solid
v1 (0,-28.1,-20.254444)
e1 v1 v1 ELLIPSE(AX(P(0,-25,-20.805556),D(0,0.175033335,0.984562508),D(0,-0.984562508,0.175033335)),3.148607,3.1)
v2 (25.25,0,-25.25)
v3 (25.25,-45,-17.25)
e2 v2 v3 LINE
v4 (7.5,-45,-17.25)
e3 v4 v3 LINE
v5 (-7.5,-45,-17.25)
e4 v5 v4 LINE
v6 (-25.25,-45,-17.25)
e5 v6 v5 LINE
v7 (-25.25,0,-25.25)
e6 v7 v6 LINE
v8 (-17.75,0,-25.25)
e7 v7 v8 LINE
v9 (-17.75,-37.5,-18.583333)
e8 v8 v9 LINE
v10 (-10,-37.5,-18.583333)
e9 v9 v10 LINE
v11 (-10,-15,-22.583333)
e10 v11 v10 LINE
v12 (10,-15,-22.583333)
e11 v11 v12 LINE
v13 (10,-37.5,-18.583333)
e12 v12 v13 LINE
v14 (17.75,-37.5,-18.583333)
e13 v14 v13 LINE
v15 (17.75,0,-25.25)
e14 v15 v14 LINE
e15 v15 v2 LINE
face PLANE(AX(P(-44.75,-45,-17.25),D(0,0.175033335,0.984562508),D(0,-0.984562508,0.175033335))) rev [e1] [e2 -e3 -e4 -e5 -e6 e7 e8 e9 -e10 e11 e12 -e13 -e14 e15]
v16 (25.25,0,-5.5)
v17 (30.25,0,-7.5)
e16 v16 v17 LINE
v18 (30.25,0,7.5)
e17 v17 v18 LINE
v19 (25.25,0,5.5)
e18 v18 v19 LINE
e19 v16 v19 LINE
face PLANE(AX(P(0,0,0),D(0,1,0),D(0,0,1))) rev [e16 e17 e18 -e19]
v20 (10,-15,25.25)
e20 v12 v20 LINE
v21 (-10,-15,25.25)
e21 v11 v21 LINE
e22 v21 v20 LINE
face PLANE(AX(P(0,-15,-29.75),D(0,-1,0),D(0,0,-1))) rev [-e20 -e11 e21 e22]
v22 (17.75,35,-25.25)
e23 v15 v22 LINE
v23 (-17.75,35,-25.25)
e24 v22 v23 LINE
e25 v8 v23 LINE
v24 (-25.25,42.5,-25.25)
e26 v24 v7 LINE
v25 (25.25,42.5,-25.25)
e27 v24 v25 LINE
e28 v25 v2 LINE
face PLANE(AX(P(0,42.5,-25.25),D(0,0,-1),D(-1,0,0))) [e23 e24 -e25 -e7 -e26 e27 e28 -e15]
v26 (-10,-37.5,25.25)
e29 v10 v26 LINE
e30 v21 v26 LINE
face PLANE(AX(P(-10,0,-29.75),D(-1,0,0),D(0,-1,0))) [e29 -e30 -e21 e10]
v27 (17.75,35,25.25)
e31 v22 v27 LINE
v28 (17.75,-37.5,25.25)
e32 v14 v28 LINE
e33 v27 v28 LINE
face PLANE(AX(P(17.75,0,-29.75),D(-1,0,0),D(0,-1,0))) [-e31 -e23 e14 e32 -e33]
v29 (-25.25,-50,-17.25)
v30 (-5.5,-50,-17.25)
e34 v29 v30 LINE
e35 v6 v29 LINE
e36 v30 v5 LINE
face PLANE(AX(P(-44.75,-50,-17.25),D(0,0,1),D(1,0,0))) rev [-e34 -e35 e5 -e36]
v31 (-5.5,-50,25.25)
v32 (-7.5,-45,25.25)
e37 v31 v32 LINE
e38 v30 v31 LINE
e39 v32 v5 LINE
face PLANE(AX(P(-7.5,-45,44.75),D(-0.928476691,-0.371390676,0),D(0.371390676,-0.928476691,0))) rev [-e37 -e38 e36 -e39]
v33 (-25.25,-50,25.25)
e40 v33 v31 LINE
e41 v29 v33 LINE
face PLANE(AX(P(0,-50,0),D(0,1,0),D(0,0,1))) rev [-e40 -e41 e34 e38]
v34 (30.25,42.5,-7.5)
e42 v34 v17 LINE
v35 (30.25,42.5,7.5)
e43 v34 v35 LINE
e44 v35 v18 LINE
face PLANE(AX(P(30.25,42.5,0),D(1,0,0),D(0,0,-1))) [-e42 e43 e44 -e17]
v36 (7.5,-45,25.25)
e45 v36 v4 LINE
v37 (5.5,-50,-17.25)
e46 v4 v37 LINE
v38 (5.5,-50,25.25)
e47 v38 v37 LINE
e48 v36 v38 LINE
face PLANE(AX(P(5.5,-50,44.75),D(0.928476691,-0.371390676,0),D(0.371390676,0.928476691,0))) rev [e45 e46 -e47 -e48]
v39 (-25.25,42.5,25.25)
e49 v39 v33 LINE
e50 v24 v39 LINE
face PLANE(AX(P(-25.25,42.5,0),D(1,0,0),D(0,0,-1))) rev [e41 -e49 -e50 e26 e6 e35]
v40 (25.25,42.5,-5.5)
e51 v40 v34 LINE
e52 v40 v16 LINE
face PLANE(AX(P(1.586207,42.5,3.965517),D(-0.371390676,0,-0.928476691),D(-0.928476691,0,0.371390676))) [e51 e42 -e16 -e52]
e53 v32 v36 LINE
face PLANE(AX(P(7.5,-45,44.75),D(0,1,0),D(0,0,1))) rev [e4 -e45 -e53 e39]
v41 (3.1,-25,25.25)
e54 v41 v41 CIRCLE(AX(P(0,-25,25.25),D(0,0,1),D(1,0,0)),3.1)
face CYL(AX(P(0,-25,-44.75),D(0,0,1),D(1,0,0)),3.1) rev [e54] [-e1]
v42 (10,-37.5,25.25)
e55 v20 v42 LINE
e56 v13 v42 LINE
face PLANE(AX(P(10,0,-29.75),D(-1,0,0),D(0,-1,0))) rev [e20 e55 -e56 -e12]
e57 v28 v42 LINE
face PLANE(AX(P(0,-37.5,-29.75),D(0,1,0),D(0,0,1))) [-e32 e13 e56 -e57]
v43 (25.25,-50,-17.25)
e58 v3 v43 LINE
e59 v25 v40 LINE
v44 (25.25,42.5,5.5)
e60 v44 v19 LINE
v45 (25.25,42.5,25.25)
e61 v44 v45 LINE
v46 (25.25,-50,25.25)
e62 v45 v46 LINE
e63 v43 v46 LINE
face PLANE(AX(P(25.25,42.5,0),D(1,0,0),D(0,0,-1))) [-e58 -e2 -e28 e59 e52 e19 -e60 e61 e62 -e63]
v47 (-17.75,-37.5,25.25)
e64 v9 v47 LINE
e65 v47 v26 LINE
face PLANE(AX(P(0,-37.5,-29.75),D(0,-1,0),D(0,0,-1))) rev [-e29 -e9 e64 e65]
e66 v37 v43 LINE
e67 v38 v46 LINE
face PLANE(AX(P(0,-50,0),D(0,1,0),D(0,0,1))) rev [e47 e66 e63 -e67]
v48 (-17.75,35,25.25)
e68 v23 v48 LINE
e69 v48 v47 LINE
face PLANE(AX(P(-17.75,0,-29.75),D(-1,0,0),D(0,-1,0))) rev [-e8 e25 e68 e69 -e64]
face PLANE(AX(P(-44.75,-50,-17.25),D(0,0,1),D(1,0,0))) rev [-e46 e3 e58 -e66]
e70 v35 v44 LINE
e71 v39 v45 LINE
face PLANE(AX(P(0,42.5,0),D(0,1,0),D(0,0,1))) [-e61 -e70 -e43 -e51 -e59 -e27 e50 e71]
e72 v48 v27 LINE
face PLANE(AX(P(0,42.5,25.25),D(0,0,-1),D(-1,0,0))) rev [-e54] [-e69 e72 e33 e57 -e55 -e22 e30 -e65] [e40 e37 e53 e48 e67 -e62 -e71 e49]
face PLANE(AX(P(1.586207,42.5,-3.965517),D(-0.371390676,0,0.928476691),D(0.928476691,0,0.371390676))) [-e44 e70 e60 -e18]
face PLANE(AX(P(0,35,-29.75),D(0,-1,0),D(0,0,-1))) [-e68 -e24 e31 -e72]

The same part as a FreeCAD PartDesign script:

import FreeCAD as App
import Part
import Sketcher

V = App.Vector

doc = App.newDocument("Part")
params = doc.addObject("Spreadsheet::Sheet", "Params")
for row, (alias, value) in enumerate([
    ("sketch1_height", "15 mm"),
    ("sketch1_width", "50.5 mm"),
    ("pad1_length", "42.5 mm"),
    ("sketch2_width", "50.5 mm"),
    ("pad2_length", "50 mm"),
    ("sketch3_width", "11 mm"),
    ("sketch3_width2", "15 mm"),
    ("pocket1_length", "70 mm"),
    ("sketch4_width", "50 mm"),
    ("sketch4_width2", "5 mm"),
    ("sketch4_height", "8 mm"),
    ("pocket2_length", "70 mm"),
    ("sketch5_diameter", "6.2 mm"),
    ("pocket3_length", "70 mm"),
    ("sketch6_width", "20 mm"),
    ("sketch6_width2", "35.5 mm"),
    ("sketch6_height", "72.5 mm"),
    ("sketch6_height2", "22.5 mm"),
    ("pocket4_length", "55 mm"),
], start=1):
    params.set(f"A{row}", alias)
    params.set(f"B{row}", "=" + value)
    params.setAlias(f"B{row}", alias)

body = doc.addObject("PartDesign::Body", "Body")

# Sketch on XZ plane
sketch1 = body.newObject("Sketcher::SketchObject", "Sketch")
sketch1.AttachmentSupport = (doc.getObject("XZ_Plane"), [""])
sketch1.MapMode = "FlatFace"
sketch1.addGeometry(Part.LineSegment(V(30.25, -7.5, 0), V(25.25, -5.5, 0)), False)
sketch1.addGeometry(Part.LineSegment(V(25.25, -5.5, 0), V(25.25, -25.25, 0)), False)
sketch1.addGeometry(Part.LineSegment(V(25.25, -25.25, 0), V(-25.25, -25.25, 0)), False)
sketch1.addGeometry(Part.LineSegment(V(-25.25, -25.25, 0), V(-25.25, 25.25, 0)), False)
sketch1.addGeometry(Part.LineSegment(V(-25.25, 25.25, 0), V(25.25, 25.25, 0)), False)
sketch1.addGeometry(Part.LineSegment(V(25.25, 25.25, 0), V(25.25, 5.5, 0)), False)
sketch1.addGeometry(Part.LineSegment(V(25.25, 5.5, 0), V(30.25, 7.5, 0)), False)
sketch1.addGeometry(Part.LineSegment(V(30.25, 7.5, 0), V(30.25, -7.5, 0)), False)
sketch1.addConstraint(Sketcher.Constraint("Coincident", 0, 2, 1, 1))
sketch1.addConstraint(Sketcher.Constraint("Coincident", 1, 2, 2, 1))
sketch1.addConstraint(Sketcher.Constraint("Coincident", 2, 2, 3, 1))
sketch1.addConstraint(Sketcher.Constraint("Coincident", 3, 2, 4, 1))
sketch1.addConstraint(Sketcher.Constraint("Coincident", 4, 2, 5, 1))
sketch1.addConstraint(Sketcher.Constraint("Coincident", 5, 2, 6, 1))
sketch1.addConstraint(Sketcher.Constraint("Coincident", 6, 2, 7, 1))
sketch1.addConstraint(Sketcher.Constraint("Coincident", 7, 2, 0, 1))
sketch1.addConstraint(Sketcher.Constraint("Vertical", 1))
sketch1.addConstraint(Sketcher.Constraint("Horizontal", 2))
sketch1.addConstraint(Sketcher.Constraint("Vertical", 3))
sketch1.addConstraint(Sketcher.Constraint("Horizontal", 4))
sketch1.addConstraint(Sketcher.Constraint("Vertical", 5))
sketch1.addConstraint(Sketcher.Constraint("Vertical", 7))
sketch1.addConstraint(Sketcher.Constraint("Symmetric", 1, 2, 3, 2, -1, 1))
sketch1.addConstraint(Sketcher.Constraint("Symmetric", 0, 2, 5, 2, -1))
sketch1.addConstraint(Sketcher.Constraint("Equal", 4, 3))
sketch1.addConstraint(Sketcher.Constraint("Equal", 0, 6))
sketch1.addConstraint(Sketcher.Constraint("DistanceY", 7, 2, 7, 1, 15.0))
sketch1.addConstraint(Sketcher.Constraint("DistanceX", 2, 2, 2, 1, 50.5))
sketch1.addConstraint(Sketcher.Constraint("DistanceY", 0, 2, 5, 2, 11.0))
sketch1.addConstraint(Sketcher.Constraint("DistanceX", 5, 2, 6, 2, 5.0))
sketch1.setExpression("Constraints[18]", "Params.sketch1_height")
sketch1.setExpression("Constraints[19]", "Params.sketch1_width")
pad1 = body.newObject("PartDesign::Pad", "Pad")
pad1.Profile = sketch1
pad1.setExpression("Length", "Params.pad1_length")
pad1.Reversed = True

# Sketch on XZ plane
sketch2 = body.newObject("Sketcher::SketchObject", "Sketch001")
sketch2.AttachmentSupport = (doc.getObject("XZ_Plane"), [""])
sketch2.MapMode = "FlatFace"
sketch2.addGeometry(Part.LineSegment(V(-25.25, -25.25, 0), V(-25.25, 25.25, 0)), False)
sketch2.addGeometry(Part.LineSegment(V(-25.25, 25.25, 0), V(25.25, 25.25, 0)), False)
sketch2.addGeometry(Part.LineSegment(V(25.25, 25.25, 0), V(25.25, -25.25, 0)), False)
sketch2.addGeometry(Part.LineSegment(V(25.25, -25.25, 0), V(-25.25, -25.25, 0)), False)
sketch2.addConstraint(Sketcher.Constraint("Coincident", 0, 2, 1, 1))
sketch2.addConstraint(Sketcher.Constraint("Coincident", 1, 2, 2, 1))
sketch2.addConstraint(Sketcher.Constraint("Coincident", 2, 2, 3, 1))
sketch2.addConstraint(Sketcher.Constraint("Coincident", 3, 2, 0, 1))
sketch2.addConstraint(Sketcher.Constraint("Vertical", 0))
sketch2.addConstraint(Sketcher.Constraint("Horizontal", 1))
sketch2.addConstraint(Sketcher.Constraint("Vertical", 2))
sketch2.addConstraint(Sketcher.Constraint("Horizontal", 3))
sketch2.addConstraint(Sketcher.Constraint("Symmetric", 0, 2, 2, 2, -1, 1))
sketch2.addConstraint(Sketcher.Constraint("Equal", 3, 0))
sketch2.addConstraint(Sketcher.Constraint("DistanceX", 1, 1, 1, 2, 50.5))
sketch2.setExpression("Constraints[10]", "Params.sketch2_width")
pad2 = body.newObject("PartDesign::Pad", "Pad001")
pad2.Profile = sketch2
pad2.setExpression("Length", "Params.pad2_length")

# Sketch on XY plane
sketch3 = body.newObject("Sketcher::SketchObject", "Sketch002")
sketch3.AttachmentSupport = (doc.getObject("XY_Plane"), [""])
sketch3.MapMode = "FlatFace"
sketch3.AttachmentOffset = App.Placement(V(0, 0, -25.25), App.Rotation())
sketch3.addGeometry(Part.LineSegment(V(7.5, -45, 0), V(5.5, -50, 0)), False)
sketch3.addGeometry(Part.LineSegment(V(5.5, -50, 0), V(-5.5, -50, 0)), False)
sketch3.addGeometry(Part.LineSegment(V(-5.5, -50, 0), V(-7.5, -45, 0)), False)
sketch3.addGeometry(Part.LineSegment(V(-7.5, -45, 0), V(7.5, -45, 0)), False)
sketch3.addConstraint(Sketcher.Constraint("Coincident", 0, 2, 1, 1))
sketch3.addConstraint(Sketcher.Constraint("Coincident", 1, 2, 2, 1))
sketch3.addConstraint(Sketcher.Constraint("Coincident", 2, 2, 3, 1))
sketch3.addConstraint(Sketcher.Constraint("Coincident", 3, 2, 0, 1))
sketch3.addConstraint(Sketcher.Constraint("Horizontal", 1))
sketch3.addConstraint(Sketcher.Constraint("Horizontal", 3))
sketch3.addConstraint(Sketcher.Constraint("Equal", 0, 2))
sketch3.addConstraint(Sketcher.Constraint("DistanceX", 1, 2, 1, 1, 11.0))
sketch3.addConstraint(Sketcher.Constraint("DistanceX", 3, 1, 3, 2, 15.0))
sketch3.addConstraint(Sketcher.Constraint("DistanceY", 0, 2, -1, 1, 50.0))
sketch3.addConstraint(Sketcher.Constraint("DistanceY", 2, 2, -1, 1, 45.0))
sketch3.addConstraint(Sketcher.Constraint("DistanceX", -1, 1, 0, 2, 5.5))
sketch3.setExpression("Constraints[7]", "Params.sketch3_width")
sketch3.setExpression("Constraints[8]", "Params.sketch3_width2")
pocket1 = body.newObject("PartDesign::Pocket", "Pocket")
pocket1.Profile = sketch3
pocket1.setExpression("Length", "Params.pocket1_length")
pocket1.Reversed = True

# Sketch on YZ plane
sketch4 = body.newObject("Sketcher::SketchObject", "Sketch003")
sketch4.AttachmentSupport = (doc.getObject("YZ_Plane"), [""])
sketch4.MapMode = "FlatFace"
sketch4.AttachmentOffset = App.Placement(V(0, 0, 25.25), App.Rotation())
sketch4.addGeometry(Part.LineSegment(V(-50, -17.25, 0), V(-50, -25.25, 0)), False)
sketch4.addGeometry(Part.LineSegment(V(-50, -25.25, 0), V(0, -25.25, 0)), False)
sketch4.addGeometry(Part.LineSegment(V(0, -25.25, 0), V(-45, -17.25, 0)), False)
sketch4.addGeometry(Part.LineSegment(V(-45, -17.25, 0), V(-50, -17.25, 0)), False)
sketch4.addConstraint(Sketcher.Constraint("Coincident", 0, 2, 1, 1))
sketch4.addConstraint(Sketcher.Constraint("Coincident", 1, 2, 2, 1))
sketch4.addConstraint(Sketcher.Constraint("Coincident", 2, 2, 3, 1))
sketch4.addConstraint(Sketcher.Constraint("Coincident", 3, 2, 0, 1))
sketch4.addConstraint(Sketcher.Constraint("Vertical", 0))
sketch4.addConstraint(Sketcher.Constraint("Horizontal", 1))
sketch4.addConstraint(Sketcher.Constraint("Horizontal", 3))
sketch4.addConstraint(Sketcher.Constraint("PointOnObject", 1, 2, -2))
sketch4.addConstraint(Sketcher.Constraint("DistanceX", 1, 1, 1, 2, 50.0))
sketch4.addConstraint(Sketcher.Constraint("DistanceX", 3, 2, 3, 1, 5.0))
sketch4.addConstraint(Sketcher.Constraint("DistanceY", 0, 2, 0, 1, 8.0))
sketch4.addConstraint(Sketcher.Constraint("DistanceY", 0, 2, -1, 1, 25.25))
sketch4.setExpression("Constraints[8]", "Params.sketch4_width")
sketch4.setExpression("Constraints[9]", "Params.sketch4_width2")
sketch4.setExpression("Constraints[10]", "Params.sketch4_height")
pocket2 = body.newObject("PartDesign::Pocket", "Pocket001")
pocket2.Profile = sketch4
pocket2.setExpression("Length", "Params.pocket2_length")

# Sketch on XY plane
sketch5 = body.newObject("Sketcher::SketchObject", "Sketch004")
sketch5.AttachmentSupport = (doc.getObject("XY_Plane"), [""])
sketch5.MapMode = "FlatFace"
sketch5.AttachmentOffset = App.Placement(V(0, 0, 25.25), App.Rotation())
sketch5.addGeometry(Part.Circle(V(0, -25, 0), V(0, 0, 1), 3.1), False)
sketch5.addConstraint(Sketcher.Constraint("PointOnObject", 0, 3, -2))
sketch5.addConstraint(Sketcher.Constraint("Diameter", 0, 6.2))
sketch5.addConstraint(Sketcher.Constraint("DistanceY", 0, 3, -1, 1, 25.0))
sketch5.setExpression("Constraints[1]", "Params.sketch5_diameter")
pocket3 = body.newObject("PartDesign::Pocket", "Pocket002")
pocket3.Profile = sketch5
pocket3.setExpression("Length", "Params.pocket3_length")

# Sketch on XY plane
sketch6 = body.newObject("Sketcher::SketchObject", "Sketch005")
sketch6.AttachmentSupport = (doc.getObject("XY_Plane"), [""])
sketch6.MapMode = "FlatFace"
sketch6.AttachmentOffset = App.Placement(V(0, 0, 25.25), App.Rotation())
sketch6.addGeometry(Part.LineSegment(V(-17.75, 35, 0), V(-17.75, -37.5, 0)), False)
sketch6.addGeometry(Part.LineSegment(V(-17.75, -37.5, 0), V(-10, -37.5, 0)), False)
sketch6.addGeometry(Part.LineSegment(V(-10, -37.5, 0), V(-10, -15, 0)), False)
sketch6.addGeometry(Part.LineSegment(V(-10, -15, 0), V(10, -15, 0)), False)
sketch6.addGeometry(Part.LineSegment(V(10, -15, 0), V(10, -37.5, 0)), False)
sketch6.addGeometry(Part.LineSegment(V(10, -37.5, 0), V(17.75, -37.5, 0)), False)
sketch6.addGeometry(Part.LineSegment(V(17.75, -37.5, 0), V(17.75, 35, 0)), False)
sketch6.addGeometry(Part.LineSegment(V(17.75, 35, 0), V(-17.75, 35, 0)), False)
sketch6.addConstraint(Sketcher.Constraint("Coincident", 0, 2, 1, 1))
sketch6.addConstraint(Sketcher.Constraint("Coincident", 1, 2, 2, 1))
sketch6.addConstraint(Sketcher.Constraint("Coincident", 2, 2, 3, 1))
sketch6.addConstraint(Sketcher.Constraint("Coincident", 3, 2, 4, 1))
sketch6.addConstraint(Sketcher.Constraint("Coincident", 4, 2, 5, 1))
sketch6.addConstraint(Sketcher.Constraint("Coincident", 5, 2, 6, 1))
sketch6.addConstraint(Sketcher.Constraint("Coincident", 6, 2, 7, 1))
sketch6.addConstraint(Sketcher.Constraint("Coincident", 7, 2, 0, 1))
sketch6.addConstraint(Sketcher.Constraint("Vertical", 0))
sketch6.addConstraint(Sketcher.Constraint("Horizontal", 1))
sketch6.addConstraint(Sketcher.Constraint("Vertical", 2))
sketch6.addConstraint(Sketcher.Constraint("Horizontal", 3))
sketch6.addConstraint(Sketcher.Constraint("Vertical", 4))
sketch6.addConstraint(Sketcher.Constraint("Horizontal", 5))
sketch6.addConstraint(Sketcher.Constraint("Vertical", 6))
sketch6.addConstraint(Sketcher.Constraint("Horizontal", 7))
sketch6.addConstraint(Sketcher.Constraint("Symmetric", 1, 2, 4, 2, -2))
sketch6.addConstraint(Sketcher.Constraint("Equal", 1, 5))
sketch6.addConstraint(Sketcher.Constraint("DistanceX", 3, 1, 3, 2, 20.0))
sketch6.addConstraint(Sketcher.Constraint("DistanceX", 7, 2, 7, 1, 35.5))
sketch6.addConstraint(Sketcher.Constraint("DistanceY", 0, 2, 0, 1, 72.5))
sketch6.addConstraint(Sketcher.Constraint("DistanceY", 2, 1, 2, 2, 22.5))
sketch6.addConstraint(Sketcher.Constraint("DistanceY", 2, 2, -1, 1, 15.0))
sketch6.setExpression("Constraints[18]", "Params.sketch6_width")
sketch6.setExpression("Constraints[19]", "Params.sketch6_width2")
sketch6.setExpression("Constraints[20]", "Params.sketch6_height")
sketch6.setExpression("Constraints[21]", "Params.sketch6_height2")
pocket4 = body.newObject("PartDesign::Pocket", "Pocket003")
pocket4.Profile = sketch6
pocket4.setExpression("Length", "Params.pocket4_length")

doc.recompute()
